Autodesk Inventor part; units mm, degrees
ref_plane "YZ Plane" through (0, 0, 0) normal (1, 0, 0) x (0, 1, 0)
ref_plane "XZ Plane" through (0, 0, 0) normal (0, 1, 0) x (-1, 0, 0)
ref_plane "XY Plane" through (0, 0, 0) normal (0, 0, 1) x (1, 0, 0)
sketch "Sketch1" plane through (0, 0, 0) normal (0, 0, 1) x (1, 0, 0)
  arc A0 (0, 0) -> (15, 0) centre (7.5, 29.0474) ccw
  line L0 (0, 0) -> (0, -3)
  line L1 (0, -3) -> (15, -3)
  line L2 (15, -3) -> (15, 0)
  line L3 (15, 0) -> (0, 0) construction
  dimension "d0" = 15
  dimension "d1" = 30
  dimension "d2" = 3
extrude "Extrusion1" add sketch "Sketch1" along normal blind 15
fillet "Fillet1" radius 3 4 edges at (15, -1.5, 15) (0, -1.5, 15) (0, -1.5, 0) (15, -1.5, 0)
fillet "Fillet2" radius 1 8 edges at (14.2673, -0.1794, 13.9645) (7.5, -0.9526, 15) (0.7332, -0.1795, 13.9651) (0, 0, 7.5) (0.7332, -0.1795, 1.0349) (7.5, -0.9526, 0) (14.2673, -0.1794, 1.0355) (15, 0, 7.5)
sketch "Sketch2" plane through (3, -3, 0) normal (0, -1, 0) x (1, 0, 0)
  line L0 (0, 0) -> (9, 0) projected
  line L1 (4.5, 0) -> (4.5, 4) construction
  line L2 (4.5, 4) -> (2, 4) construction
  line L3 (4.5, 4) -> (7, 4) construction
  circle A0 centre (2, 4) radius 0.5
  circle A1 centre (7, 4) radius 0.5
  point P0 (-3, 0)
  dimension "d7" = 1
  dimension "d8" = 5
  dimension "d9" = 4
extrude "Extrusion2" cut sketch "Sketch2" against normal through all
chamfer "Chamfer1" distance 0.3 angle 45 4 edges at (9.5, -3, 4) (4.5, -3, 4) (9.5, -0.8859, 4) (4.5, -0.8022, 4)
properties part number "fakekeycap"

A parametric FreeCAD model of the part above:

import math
import FreeCAD as App
import Part
import Sketcher

V = App.Vector
Q = App.Units.Quantity


def edges_at(feature, points):
    """Names of the edges that pass closest to the given points."""
    edges = feature.Shape.Edges
    near = lambda p: min(range(len(edges)), key=lambda i: edges[i].distToShape(Part.Vertex(*p))[0])
    return sorted({f"Edge{near(p) + 1}" for p in points})

doc = App.newDocument("Part")
body = doc.addObject("PartDesign::Body", "Body")

# Sketch on XY plane
sketch1 = body.newObject("Sketcher::SketchObject", "Sketch")
sketch1.AttachmentSupport = (doc.getObject("XY_Plane"), [""])
sketch1.MapMode = "FlatFace"
sketch1.addGeometry([
    Part.ArcOfCircle(Part.Circle(V(7.5, 29, 0), V(0, 0, 1), 30), math.radians(-104), math.radians(-76)),
    Part.LineSegment(V(0, 0, 0), V(0, -3, 0)),
    Part.LineSegment(V(0, -3, 0), V(15, -3, 0)),
    Part.LineSegment(V(15, -3, 0), V(15, 0, 0)),
], False)
sketch1.addConstraint([
    Sketcher.Constraint("Coincident", 0, 1, 1, 1),
    Sketcher.Constraint("Coincident", 1, 2, 2, 1),
    Sketcher.Constraint("Coincident", 2, 2, 3, 1),
    Sketcher.Constraint("Coincident", 3, 2, 0, 2),
    Sketcher.Constraint("Vertical", 1),
    Sketcher.Constraint("Horizontal", 2),
    Sketcher.Constraint("Vertical", 3),
    Sketcher.Constraint("Coincident", 0, 1, -1, 1),
    Sketcher.Constraint("PointOnObject", 3, 2, -1),
    Sketcher.Constraint("Radius", 0, Q("30 mm")),
    Sketcher.Constraint("DistanceX", 2, 1, 2, 2, Q("15 mm")),
    Sketcher.Constraint("DistanceY", 1, 2, 1, 1, Q("3 mm")),
])
pad1 = body.newObject("PartDesign::Pad", "Pad")
pad1.Profile = sketch1
pad1.Length = 15
doc.recompute()

fillet = body.newObject("PartDesign::Fillet", "Fillet")
fillet.Base = (pad1, edges_at(pad1, [
    (15, -1.5, 15),
    (0, -1.5, 15),
    (0, -1.5, 0),
    (15, -1.5, 0),
]))
fillet.Radius = 3
doc.recompute()

fillet2 = body.newObject("PartDesign::Fillet", "Fillet001")
fillet2.Base = (fillet, edges_at(fillet, [
    (14.267, -0.179, 13.964),
    (7.5, -0.953, 15),
    (0.733, -0.179, 13.965),
    (0, 0, 7.5),
    (0.733, -0.179, 1.035),
    (7.5, -0.953, 0),
    (14.267, -0.179, 1.036),
    (15, 0, 7.5),
]))
fillet2.Radius = 1

# Sketch on XZ plane
sketch2 = body.newObject("Sketcher::SketchObject", "Sketch001")
sketch2.AttachmentSupport = (doc.getObject("XZ_Plane"), [""])
sketch2.MapMode = "FlatFace"
sketch2.AttachmentOffset = App.Placement(V(0, 0, 3), App.Rotation())
sketch2.addGeometry([
    Part.Circle(V(5, 4, 0), V(0, 0, 1), 0.5),
    Part.Circle(V(10, 4, 0), V(0, 0, 1), 0.5),
], False)
sketch2.addConstraint([
    Sketcher.Constraint("Equal", 0, 1),
    Sketcher.Constraint("Horizontal", 0, 3, 1, 3),
    Sketcher.Constraint("Diameter", 0, Q("1 mm")),
    Sketcher.Constraint("DistanceX", -1, 1, 0, 3, Q("5 mm")),
    Sketcher.Constraint("DistanceY", -1, 1, 0, 3, Q("4 mm")),
    Sketcher.Constraint("DistanceX", 0, 3, 1, 3, Q("5 mm")),
])
pocket1 = body.newObject("PartDesign::Pocket", "Pocket")
pocket1.Profile = sketch2
pocket1.Type = "ThroughAll"
doc.recompute()

chamfer = body.newObject("PartDesign::Chamfer", "Chamfer")
chamfer.Base = (pocket1, edges_at(pocket1, [
    (9.5, -3, 4),
    (4.5, -3, 4),
    (9.5, -0.886, 4),
    (4.5, -0.802, 4),
]))
chamfer.Size = 0.3

doc.recompute()
